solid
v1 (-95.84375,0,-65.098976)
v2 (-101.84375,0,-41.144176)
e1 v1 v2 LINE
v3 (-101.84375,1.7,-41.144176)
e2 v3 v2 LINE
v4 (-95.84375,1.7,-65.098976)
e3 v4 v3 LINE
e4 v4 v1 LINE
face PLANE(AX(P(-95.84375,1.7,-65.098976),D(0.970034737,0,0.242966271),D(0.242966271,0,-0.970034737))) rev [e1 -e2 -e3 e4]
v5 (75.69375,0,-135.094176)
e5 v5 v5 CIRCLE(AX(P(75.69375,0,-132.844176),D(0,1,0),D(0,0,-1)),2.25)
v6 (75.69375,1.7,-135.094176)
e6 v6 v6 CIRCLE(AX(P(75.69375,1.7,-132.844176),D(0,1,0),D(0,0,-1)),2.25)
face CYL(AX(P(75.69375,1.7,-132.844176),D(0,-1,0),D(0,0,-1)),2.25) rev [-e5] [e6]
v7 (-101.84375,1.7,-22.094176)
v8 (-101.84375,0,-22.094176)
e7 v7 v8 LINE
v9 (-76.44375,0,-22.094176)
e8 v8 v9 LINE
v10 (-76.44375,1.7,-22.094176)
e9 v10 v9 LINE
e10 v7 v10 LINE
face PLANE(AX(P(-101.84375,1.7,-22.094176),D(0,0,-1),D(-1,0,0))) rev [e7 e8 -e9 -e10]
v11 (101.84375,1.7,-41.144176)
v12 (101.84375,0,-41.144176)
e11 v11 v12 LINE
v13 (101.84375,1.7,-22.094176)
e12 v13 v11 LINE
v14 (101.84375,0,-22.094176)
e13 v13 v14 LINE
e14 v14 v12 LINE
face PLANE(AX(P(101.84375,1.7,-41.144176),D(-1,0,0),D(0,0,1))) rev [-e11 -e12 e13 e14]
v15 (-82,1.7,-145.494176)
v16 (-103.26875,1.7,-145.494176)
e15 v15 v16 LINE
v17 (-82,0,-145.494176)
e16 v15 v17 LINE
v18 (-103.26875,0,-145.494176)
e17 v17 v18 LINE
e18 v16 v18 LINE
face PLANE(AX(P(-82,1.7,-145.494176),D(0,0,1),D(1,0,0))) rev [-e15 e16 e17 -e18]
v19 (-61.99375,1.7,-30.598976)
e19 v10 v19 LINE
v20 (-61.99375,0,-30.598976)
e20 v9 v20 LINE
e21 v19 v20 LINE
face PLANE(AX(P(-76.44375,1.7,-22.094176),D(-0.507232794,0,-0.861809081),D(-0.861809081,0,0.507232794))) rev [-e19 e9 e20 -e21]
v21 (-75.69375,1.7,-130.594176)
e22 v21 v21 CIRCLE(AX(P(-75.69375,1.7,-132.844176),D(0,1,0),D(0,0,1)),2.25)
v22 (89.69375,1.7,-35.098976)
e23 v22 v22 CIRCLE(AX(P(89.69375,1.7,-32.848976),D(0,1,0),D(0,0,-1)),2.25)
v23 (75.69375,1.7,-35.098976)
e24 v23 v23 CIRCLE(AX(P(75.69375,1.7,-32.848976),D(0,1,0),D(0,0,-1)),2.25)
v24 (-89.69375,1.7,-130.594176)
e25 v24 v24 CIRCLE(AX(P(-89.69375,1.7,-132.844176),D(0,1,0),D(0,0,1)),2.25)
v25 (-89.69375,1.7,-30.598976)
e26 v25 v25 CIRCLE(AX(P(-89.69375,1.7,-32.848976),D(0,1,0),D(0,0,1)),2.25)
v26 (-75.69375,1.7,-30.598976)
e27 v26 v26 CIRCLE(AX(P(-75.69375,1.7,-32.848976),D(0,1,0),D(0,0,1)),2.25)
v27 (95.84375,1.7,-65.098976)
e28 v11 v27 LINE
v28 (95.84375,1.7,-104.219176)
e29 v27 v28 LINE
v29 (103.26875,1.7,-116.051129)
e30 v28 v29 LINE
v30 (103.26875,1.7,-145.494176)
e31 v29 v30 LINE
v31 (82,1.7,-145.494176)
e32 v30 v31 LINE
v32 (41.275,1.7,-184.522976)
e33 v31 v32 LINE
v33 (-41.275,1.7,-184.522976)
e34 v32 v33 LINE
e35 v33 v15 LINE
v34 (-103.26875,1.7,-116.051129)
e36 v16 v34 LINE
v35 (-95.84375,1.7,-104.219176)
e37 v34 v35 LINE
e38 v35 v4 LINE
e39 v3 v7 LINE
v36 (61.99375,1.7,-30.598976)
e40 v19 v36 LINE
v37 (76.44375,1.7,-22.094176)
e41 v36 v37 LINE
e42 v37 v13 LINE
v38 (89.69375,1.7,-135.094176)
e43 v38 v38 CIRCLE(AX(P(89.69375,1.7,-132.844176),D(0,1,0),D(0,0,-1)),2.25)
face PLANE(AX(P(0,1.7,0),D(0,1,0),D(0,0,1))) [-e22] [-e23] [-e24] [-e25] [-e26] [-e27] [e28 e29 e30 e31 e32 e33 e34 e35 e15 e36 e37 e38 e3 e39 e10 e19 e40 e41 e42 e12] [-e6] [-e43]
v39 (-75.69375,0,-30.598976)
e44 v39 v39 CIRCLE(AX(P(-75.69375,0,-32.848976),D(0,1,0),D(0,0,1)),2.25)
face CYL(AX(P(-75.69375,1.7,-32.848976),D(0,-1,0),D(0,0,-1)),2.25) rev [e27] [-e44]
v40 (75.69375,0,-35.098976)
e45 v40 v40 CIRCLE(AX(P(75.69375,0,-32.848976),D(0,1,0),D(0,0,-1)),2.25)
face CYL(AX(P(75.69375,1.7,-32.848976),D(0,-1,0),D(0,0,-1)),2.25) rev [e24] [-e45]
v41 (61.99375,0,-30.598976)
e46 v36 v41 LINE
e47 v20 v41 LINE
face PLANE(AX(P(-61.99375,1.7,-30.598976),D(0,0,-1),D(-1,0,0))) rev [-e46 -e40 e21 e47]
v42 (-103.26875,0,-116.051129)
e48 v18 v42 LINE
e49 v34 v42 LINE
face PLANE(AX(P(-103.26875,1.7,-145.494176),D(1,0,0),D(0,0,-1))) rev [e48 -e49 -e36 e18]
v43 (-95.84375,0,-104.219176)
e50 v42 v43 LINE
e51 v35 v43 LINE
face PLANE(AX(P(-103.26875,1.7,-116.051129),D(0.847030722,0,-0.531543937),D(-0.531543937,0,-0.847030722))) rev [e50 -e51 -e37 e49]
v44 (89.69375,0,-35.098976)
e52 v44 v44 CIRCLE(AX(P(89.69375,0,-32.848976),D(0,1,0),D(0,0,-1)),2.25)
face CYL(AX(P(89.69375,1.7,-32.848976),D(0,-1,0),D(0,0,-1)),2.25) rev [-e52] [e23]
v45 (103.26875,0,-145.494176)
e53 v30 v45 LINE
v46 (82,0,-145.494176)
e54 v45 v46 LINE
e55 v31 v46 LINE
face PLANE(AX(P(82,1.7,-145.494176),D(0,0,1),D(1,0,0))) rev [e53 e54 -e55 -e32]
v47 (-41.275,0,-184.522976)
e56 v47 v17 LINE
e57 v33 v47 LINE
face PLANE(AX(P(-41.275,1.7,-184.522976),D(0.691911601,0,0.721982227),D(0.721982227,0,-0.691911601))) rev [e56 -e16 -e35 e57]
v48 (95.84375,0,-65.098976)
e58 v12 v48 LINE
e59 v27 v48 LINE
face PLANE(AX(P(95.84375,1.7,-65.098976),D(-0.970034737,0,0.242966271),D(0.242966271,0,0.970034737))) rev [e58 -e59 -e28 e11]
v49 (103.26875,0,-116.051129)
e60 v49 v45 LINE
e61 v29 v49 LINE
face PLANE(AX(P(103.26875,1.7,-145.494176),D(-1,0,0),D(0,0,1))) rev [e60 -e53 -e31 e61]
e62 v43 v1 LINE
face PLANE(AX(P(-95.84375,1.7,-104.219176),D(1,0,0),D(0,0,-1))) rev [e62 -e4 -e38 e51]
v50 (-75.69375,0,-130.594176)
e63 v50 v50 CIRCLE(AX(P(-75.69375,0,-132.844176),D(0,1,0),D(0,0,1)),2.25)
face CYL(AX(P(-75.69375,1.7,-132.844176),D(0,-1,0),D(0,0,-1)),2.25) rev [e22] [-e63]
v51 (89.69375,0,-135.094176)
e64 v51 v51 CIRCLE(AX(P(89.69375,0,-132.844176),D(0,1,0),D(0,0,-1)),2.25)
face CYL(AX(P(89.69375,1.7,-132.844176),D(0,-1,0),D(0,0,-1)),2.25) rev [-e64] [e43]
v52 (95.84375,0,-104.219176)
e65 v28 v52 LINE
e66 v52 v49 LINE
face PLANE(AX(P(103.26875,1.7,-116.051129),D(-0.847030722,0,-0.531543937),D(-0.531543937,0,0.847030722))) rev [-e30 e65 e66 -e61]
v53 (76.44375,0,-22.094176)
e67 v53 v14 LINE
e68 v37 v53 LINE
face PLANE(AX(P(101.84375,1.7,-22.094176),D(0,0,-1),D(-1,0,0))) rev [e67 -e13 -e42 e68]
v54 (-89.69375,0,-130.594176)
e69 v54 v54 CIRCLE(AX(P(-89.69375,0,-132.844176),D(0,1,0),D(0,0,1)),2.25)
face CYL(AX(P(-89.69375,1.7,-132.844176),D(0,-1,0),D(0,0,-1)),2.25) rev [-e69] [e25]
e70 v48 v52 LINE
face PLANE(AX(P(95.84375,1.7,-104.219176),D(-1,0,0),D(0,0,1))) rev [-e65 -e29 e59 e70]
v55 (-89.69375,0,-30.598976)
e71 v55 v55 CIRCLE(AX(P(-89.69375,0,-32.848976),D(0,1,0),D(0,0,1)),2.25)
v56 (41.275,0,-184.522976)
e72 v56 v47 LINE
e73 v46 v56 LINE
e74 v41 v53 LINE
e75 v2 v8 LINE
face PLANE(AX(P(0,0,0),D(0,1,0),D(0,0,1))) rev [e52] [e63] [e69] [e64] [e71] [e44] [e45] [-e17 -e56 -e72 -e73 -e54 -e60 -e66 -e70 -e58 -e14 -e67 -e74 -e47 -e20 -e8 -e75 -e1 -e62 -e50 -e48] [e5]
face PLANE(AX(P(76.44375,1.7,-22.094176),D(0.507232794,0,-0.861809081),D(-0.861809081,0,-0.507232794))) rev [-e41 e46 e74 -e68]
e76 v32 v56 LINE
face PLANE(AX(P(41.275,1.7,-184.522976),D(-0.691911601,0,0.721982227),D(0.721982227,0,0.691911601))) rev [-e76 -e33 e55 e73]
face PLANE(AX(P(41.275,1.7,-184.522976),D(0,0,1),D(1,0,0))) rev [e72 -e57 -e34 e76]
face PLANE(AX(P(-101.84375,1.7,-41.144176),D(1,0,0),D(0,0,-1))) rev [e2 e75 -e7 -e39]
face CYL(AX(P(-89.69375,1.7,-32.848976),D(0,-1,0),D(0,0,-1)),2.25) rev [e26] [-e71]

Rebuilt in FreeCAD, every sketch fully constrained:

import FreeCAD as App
import Part
import Sketcher
Q = App.Units.Quantity


def add_polygon(sketch, points):
    """Adds a closed chain of lines whose ends are joined by coincident constraints."""
    first, n = sketch.GeometryCount, len(points)
    for a, b in zip(points, points[1:] + points[:1]):
        sketch.addGeometry(Part.LineSegment(App.Vector(*a, 0), App.Vector(*b, 0)), False)
    for i in range(n):
        sketch.addConstraint(Sketcher.Constraint("Coincident", first + i, 2, first + (i + 1) % n, 1))

doc = App.newDocument("Part")
body = doc.addObject("PartDesign::Body", "Body")

sketch1 = body.newObject("Sketcher::SketchObject", "Sketch")
sketch1.AttachmentSupport = (doc.getObject("XZ_Plane"), [""])
sketch1.MapMode = "FlatFace"
add_polygon(sketch1, [(41.3, -184.5), (-41.3, -184.5), (-82, -145.5), (-103.3, -145.5), (-103.3, -116.1), (-95.8, -104.2), (-95.8, -65.1), (-101.8, -41.1), (-101.8, -22.1), (-76.4, -22.1), (-62, -30.6), (62, -30.6), (76.4, -22.1), (101.8, -22.1), (101.8, -41.1), (95.8, -65.1), (95.8, -104.2), (103.3, -116.1), (103.3, -145.5), (82, -145.5)])
sketch1.addGeometry(Part.Circle(App.Vector(-89.7, -32.8, 0), App.Vector(0, 0, 1), 2.2), False)
sketch1.addGeometry(Part.Circle(App.Vector(-75.7, -32.8, 0), App.Vector(0, 0, 1), 2.2), False)
sketch1.addGeometry(Part.Circle(App.Vector(75.7, -32.8, 0), App.Vector(0, 0, 1), 2.2), False)
sketch1.addGeometry(Part.Circle(App.Vector(89.7, -32.8, 0), App.Vector(0, 0, 1), 2.2), False)
sketch1.addGeometry(Part.Circle(App.Vector(-89.7, -132.8, 0), App.Vector(0, 0, 1), 2.2), False)
sketch1.addGeometry(Part.Circle(App.Vector(-75.7, -132.8, 0), App.Vector(0, 0, 1), 2.2), False)
sketch1.addGeometry(Part.Circle(App.Vector(75.7, -132.8, 0), App.Vector(0, 0, 1), 2.2), False)
sketch1.addGeometry(Part.Circle(App.Vector(89.7, -132.8, 0), App.Vector(0, 0, 1), 2.2), False)
sketch1.addConstraint(Sketcher.Constraint("Horizontal", 0))
sketch1.addConstraint(Sketcher.Constraint("Horizontal", 2))
sketch1.addConstraint(Sketcher.Constraint("Vertical", 3))
sketch1.addConstraint(Sketcher.Constraint("Vertical", 5))
sketch1.addConstraint(Sketcher.Constraint("Vertical", 7))
sketch1.addConstraint(Sketcher.Constraint("Horizontal", 8))
sketch1.addConstraint(Sketcher.Constraint("Horizontal", 10))
sketch1.addConstraint(Sketcher.Constraint("Horizontal", 12))
sketch1.addConstraint(Sketcher.Constraint("Vertical", 13))
sketch1.addConstraint(Sketcher.Constraint("Vertical", 15))
sketch1.addConstraint(Sketcher.Constraint("Vertical", 17))
sketch1.addConstraint(Sketcher.Constraint("Horizontal", 18))
sketch1.addConstraint(Sketcher.Constraint("Equal", 20, 21))
sketch1.addConstraint(Sketcher.Constraint("Equal", 21, 22))
sketch1.addConstraint(Sketcher.Constraint("Equal", 22, 23))
sketch1.addConstraint(Sketcher.Constraint("Equal", 23, 24))
sketch1.addConstraint(Sketcher.Constraint("Equal", 24, 25))
sketch1.addConstraint(Sketcher.Constraint("Equal", 25, 26))
sketch1.addConstraint(Sketcher.Constraint("Equal", 26, 27))
sketch1.addConstraint(Sketcher.Constraint("Symmetric", 21, 3, 22, 3, -2))
sketch1.addConstraint(Sketcher.Constraint("Symmetric", 20, 3, 23, 3, -2))
sketch1.addConstraint(Sketcher.Constraint("Symmetric", 25, 3, 26, 3, -2))
sketch1.addConstraint(Sketcher.Constraint("Symmetric", 24, 3, 27, 3, -2))
sketch1.addConstraint(Sketcher.Constraint("Symmetric", 8, 2, 11, 2, -2))
sketch1.addConstraint(Sketcher.Constraint("Symmetric", 6, 2, 13, 2, -2))
sketch1.addConstraint(Sketcher.Constraint("Symmetric", 5, 2, 14, 2, -2))
sketch1.addConstraint(Sketcher.Constraint("Symmetric", 3, 2, 16, 2, -2))
sketch1.addConstraint(Sketcher.Constraint("Symmetric", 1, 2, 18, 2, -2))
sketch1.addConstraint(Sketcher.Constraint("Horizontal", 20, 3, 21, 3))
sketch1.addConstraint(Sketcher.Constraint("Horizontal", 24, 3, 25, 3))
sketch1.addConstraint(Sketcher.Constraint("Horizontal", 4, 2, 15, 2))
sketch1.addConstraint(Sketcher.Constraint("Vertical", 20, 3, 24, 3))
sketch1.addConstraint(Sketcher.Constraint("Vertical", 21, 3, 25, 3))
sketch1.addConstraint(Sketcher.Constraint("Equal", 9, 11))
sketch1.addConstraint(Sketcher.Constraint("Equal", 1, 19))
sketch1.addConstraint(Sketcher.Constraint("DistanceX", 8, 1, 8, 2, Q("1 in")))
sketch1.addConstraint(Sketcher.Constraint("DistanceX", 0, 2, 0, 1, Q("3.25 in")))
sketch1.addConstraint(Sketcher.Constraint("DistanceY", 7, 1, 7, 2, Q("0.75 in")))
sketch1.addConstraint(Sketcher.Constraint("Diameter", 20, 4.5))
sketch1.addConstraint(Sketcher.Constraint("DistanceX", 20, 3, -1, 1, Q("3.53125 in")))
sketch1.addConstraint(Sketcher.Constraint("DistanceY", 2, 2, 4, 2, Q("1.625 in")))
sketch1.addConstraint(Sketcher.Constraint("DistanceX", 10, 1, 10, 2, 123.9875))
sketch1.addConstraint(Sketcher.Constraint("DistanceY", 5, 1, 5, 2, 39.1202))
sketch1.addConstraint(Sketcher.Constraint("DistanceX", 2, 2, 2, 1, 21.26875))
sketch1.addConstraint(Sketcher.Constraint("DistanceX", 1, 2, -1, 1, 82.0))
sketch1.addConstraint(Sketcher.Constraint("DistanceX", 20, 3, 21, 3, 14.0))
sketch1.addConstraint(Sketcher.Constraint("DistanceY", 24, 3, 20, 3, 99.9952))
sketch1.addConstraint(Sketcher.Constraint("DistanceY", 0, 2, 25, 3, 51.6788))
sketch1.addConstraint(Sketcher.Constraint("DistanceY", 1, 2, 25, 3, 12.65))
sketch1.addConstraint(Sketcher.Constraint("DistanceX", 3, 2, 4, 2, 7.425))
sketch1.addConstraint(Sketcher.Constraint("DistanceX", 6, 2, 20, 3, 12.15))
sketch1.addConstraint(Sketcher.Constraint("DistanceY", 6, 2, 20, 3, 8.2952))
sketch1.addConstraint(Sketcher.Constraint("DistanceY", 21, 3, 9, 2, 2.25))
sketch1.addConstraint(Sketcher.Constraint("Distance", 4, 13.968742))
sketch1.addConstraint(Sketcher.Constraint("DistanceY", 3, 2, -1, 1, 116.051129))
pad1 = body.newObject("PartDesign::Pad", "Pad")
pad1.Profile = sketch1
pad1.Length = 1.7
pad1.Reversed = True

doc.recompute()
